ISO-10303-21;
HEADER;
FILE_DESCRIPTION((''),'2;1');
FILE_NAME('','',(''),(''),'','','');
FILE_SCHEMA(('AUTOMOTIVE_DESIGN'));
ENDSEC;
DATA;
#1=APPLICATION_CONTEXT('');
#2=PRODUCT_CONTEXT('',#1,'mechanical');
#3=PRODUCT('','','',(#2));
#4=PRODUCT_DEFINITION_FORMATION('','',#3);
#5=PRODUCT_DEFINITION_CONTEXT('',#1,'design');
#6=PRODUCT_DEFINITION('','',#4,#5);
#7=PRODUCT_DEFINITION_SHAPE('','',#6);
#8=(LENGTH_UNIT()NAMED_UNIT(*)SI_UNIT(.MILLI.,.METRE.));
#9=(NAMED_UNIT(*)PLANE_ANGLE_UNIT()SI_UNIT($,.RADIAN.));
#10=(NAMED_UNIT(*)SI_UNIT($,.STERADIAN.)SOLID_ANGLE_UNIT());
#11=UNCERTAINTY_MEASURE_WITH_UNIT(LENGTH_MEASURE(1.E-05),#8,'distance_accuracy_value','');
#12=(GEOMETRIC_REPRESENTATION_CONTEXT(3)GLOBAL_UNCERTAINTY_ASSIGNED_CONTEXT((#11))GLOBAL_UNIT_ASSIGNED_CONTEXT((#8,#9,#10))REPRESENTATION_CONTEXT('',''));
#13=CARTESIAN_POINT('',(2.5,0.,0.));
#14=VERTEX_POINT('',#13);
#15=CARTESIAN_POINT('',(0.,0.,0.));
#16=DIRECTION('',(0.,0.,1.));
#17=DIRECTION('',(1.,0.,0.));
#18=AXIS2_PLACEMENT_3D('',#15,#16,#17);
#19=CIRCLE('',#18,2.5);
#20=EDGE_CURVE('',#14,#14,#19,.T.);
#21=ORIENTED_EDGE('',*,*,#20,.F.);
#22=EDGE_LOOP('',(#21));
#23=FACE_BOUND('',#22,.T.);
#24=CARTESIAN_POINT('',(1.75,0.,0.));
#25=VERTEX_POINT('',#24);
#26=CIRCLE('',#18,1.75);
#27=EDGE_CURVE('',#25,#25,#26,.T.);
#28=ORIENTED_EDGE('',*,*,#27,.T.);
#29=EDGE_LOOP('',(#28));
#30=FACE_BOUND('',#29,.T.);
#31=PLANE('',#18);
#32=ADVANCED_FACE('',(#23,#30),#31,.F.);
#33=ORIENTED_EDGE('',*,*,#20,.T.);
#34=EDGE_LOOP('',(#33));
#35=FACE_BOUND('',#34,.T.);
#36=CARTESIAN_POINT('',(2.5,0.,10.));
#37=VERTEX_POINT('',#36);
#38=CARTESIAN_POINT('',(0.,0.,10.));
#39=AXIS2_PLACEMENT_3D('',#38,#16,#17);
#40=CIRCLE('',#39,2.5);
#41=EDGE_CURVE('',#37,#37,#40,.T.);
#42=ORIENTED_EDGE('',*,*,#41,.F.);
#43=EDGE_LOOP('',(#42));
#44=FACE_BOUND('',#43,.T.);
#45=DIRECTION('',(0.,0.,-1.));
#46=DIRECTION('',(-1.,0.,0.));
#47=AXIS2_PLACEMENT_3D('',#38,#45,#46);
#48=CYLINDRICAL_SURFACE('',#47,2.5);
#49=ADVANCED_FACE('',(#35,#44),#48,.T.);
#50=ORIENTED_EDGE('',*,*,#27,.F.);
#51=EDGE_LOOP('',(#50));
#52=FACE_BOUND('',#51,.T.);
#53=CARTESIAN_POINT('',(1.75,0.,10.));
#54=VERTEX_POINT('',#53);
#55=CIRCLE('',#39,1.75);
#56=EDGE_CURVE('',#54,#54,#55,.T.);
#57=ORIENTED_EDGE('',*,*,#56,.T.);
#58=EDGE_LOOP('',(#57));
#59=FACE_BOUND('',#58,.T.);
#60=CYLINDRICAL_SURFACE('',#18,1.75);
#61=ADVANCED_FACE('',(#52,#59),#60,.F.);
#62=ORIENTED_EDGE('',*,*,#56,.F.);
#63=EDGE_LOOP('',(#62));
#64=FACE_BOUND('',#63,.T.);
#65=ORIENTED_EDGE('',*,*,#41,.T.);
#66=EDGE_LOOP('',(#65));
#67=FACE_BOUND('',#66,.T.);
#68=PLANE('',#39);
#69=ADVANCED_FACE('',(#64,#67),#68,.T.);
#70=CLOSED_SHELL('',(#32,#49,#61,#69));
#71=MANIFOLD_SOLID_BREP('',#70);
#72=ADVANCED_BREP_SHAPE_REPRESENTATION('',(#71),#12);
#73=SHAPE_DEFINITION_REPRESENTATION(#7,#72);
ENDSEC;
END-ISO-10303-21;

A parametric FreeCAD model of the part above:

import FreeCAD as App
import Part
import Sketcher

doc = App.newDocument("Part")
body = doc.addObject("PartDesign::Body", "Body")

# Sketch on XY plane
sketch1 = doc.addObject("Sketcher::SketchObject", "Sketch")
body.addObject(sketch1)
sketch1.AttachmentSupport = (doc.XY_Plane, [""])
sketch1.MapMode = "FlatFace"
sketch1.addGeometry(Part.Circle(App.Vector(0, 0, 0), App.Vector(0, 0, 1), 2.5), False)
sketch1.addConstraint([
    Sketcher.Constraint("Coincident", 0, 3, -1, 1),
    Sketcher.Constraint("Diameter", 0, 5.0),
])
pad1 = doc.addObject("PartDesign::Pad", "Pad")
body.addObject(pad1)
pad1.Profile = sketch1
pad1.Length = 10

# Sketch on XY plane
sketch2 = doc.addObject("Sketcher::SketchObject", "Sketch001")
body.addObject(sketch2)
sketch2.AttachmentSupport = (doc.XY_Plane, [""])
sketch2.MapMode = "FlatFace"
sketch2.AttachmentOffset = App.Placement(App.Vector(0, 0, 10), App.Rotation())
sketch2.addGeometry(Part.Circle(App.Vector(0, 0, 0), App.Vector(0, 0, 1), 1.75), False)
sketch2.addConstraint([
    Sketcher.Constraint("Coincident", 0, 3, -1, 1),
    Sketcher.Constraint("Diameter", 0, 3.5),
])
pocket1 = doc.addObject("PartDesign::Pocket", "Pocket")
body.addObject(pocket1)
pocket1.Profile = sketch2
pocket1.Length = 10

doc.recompute()
